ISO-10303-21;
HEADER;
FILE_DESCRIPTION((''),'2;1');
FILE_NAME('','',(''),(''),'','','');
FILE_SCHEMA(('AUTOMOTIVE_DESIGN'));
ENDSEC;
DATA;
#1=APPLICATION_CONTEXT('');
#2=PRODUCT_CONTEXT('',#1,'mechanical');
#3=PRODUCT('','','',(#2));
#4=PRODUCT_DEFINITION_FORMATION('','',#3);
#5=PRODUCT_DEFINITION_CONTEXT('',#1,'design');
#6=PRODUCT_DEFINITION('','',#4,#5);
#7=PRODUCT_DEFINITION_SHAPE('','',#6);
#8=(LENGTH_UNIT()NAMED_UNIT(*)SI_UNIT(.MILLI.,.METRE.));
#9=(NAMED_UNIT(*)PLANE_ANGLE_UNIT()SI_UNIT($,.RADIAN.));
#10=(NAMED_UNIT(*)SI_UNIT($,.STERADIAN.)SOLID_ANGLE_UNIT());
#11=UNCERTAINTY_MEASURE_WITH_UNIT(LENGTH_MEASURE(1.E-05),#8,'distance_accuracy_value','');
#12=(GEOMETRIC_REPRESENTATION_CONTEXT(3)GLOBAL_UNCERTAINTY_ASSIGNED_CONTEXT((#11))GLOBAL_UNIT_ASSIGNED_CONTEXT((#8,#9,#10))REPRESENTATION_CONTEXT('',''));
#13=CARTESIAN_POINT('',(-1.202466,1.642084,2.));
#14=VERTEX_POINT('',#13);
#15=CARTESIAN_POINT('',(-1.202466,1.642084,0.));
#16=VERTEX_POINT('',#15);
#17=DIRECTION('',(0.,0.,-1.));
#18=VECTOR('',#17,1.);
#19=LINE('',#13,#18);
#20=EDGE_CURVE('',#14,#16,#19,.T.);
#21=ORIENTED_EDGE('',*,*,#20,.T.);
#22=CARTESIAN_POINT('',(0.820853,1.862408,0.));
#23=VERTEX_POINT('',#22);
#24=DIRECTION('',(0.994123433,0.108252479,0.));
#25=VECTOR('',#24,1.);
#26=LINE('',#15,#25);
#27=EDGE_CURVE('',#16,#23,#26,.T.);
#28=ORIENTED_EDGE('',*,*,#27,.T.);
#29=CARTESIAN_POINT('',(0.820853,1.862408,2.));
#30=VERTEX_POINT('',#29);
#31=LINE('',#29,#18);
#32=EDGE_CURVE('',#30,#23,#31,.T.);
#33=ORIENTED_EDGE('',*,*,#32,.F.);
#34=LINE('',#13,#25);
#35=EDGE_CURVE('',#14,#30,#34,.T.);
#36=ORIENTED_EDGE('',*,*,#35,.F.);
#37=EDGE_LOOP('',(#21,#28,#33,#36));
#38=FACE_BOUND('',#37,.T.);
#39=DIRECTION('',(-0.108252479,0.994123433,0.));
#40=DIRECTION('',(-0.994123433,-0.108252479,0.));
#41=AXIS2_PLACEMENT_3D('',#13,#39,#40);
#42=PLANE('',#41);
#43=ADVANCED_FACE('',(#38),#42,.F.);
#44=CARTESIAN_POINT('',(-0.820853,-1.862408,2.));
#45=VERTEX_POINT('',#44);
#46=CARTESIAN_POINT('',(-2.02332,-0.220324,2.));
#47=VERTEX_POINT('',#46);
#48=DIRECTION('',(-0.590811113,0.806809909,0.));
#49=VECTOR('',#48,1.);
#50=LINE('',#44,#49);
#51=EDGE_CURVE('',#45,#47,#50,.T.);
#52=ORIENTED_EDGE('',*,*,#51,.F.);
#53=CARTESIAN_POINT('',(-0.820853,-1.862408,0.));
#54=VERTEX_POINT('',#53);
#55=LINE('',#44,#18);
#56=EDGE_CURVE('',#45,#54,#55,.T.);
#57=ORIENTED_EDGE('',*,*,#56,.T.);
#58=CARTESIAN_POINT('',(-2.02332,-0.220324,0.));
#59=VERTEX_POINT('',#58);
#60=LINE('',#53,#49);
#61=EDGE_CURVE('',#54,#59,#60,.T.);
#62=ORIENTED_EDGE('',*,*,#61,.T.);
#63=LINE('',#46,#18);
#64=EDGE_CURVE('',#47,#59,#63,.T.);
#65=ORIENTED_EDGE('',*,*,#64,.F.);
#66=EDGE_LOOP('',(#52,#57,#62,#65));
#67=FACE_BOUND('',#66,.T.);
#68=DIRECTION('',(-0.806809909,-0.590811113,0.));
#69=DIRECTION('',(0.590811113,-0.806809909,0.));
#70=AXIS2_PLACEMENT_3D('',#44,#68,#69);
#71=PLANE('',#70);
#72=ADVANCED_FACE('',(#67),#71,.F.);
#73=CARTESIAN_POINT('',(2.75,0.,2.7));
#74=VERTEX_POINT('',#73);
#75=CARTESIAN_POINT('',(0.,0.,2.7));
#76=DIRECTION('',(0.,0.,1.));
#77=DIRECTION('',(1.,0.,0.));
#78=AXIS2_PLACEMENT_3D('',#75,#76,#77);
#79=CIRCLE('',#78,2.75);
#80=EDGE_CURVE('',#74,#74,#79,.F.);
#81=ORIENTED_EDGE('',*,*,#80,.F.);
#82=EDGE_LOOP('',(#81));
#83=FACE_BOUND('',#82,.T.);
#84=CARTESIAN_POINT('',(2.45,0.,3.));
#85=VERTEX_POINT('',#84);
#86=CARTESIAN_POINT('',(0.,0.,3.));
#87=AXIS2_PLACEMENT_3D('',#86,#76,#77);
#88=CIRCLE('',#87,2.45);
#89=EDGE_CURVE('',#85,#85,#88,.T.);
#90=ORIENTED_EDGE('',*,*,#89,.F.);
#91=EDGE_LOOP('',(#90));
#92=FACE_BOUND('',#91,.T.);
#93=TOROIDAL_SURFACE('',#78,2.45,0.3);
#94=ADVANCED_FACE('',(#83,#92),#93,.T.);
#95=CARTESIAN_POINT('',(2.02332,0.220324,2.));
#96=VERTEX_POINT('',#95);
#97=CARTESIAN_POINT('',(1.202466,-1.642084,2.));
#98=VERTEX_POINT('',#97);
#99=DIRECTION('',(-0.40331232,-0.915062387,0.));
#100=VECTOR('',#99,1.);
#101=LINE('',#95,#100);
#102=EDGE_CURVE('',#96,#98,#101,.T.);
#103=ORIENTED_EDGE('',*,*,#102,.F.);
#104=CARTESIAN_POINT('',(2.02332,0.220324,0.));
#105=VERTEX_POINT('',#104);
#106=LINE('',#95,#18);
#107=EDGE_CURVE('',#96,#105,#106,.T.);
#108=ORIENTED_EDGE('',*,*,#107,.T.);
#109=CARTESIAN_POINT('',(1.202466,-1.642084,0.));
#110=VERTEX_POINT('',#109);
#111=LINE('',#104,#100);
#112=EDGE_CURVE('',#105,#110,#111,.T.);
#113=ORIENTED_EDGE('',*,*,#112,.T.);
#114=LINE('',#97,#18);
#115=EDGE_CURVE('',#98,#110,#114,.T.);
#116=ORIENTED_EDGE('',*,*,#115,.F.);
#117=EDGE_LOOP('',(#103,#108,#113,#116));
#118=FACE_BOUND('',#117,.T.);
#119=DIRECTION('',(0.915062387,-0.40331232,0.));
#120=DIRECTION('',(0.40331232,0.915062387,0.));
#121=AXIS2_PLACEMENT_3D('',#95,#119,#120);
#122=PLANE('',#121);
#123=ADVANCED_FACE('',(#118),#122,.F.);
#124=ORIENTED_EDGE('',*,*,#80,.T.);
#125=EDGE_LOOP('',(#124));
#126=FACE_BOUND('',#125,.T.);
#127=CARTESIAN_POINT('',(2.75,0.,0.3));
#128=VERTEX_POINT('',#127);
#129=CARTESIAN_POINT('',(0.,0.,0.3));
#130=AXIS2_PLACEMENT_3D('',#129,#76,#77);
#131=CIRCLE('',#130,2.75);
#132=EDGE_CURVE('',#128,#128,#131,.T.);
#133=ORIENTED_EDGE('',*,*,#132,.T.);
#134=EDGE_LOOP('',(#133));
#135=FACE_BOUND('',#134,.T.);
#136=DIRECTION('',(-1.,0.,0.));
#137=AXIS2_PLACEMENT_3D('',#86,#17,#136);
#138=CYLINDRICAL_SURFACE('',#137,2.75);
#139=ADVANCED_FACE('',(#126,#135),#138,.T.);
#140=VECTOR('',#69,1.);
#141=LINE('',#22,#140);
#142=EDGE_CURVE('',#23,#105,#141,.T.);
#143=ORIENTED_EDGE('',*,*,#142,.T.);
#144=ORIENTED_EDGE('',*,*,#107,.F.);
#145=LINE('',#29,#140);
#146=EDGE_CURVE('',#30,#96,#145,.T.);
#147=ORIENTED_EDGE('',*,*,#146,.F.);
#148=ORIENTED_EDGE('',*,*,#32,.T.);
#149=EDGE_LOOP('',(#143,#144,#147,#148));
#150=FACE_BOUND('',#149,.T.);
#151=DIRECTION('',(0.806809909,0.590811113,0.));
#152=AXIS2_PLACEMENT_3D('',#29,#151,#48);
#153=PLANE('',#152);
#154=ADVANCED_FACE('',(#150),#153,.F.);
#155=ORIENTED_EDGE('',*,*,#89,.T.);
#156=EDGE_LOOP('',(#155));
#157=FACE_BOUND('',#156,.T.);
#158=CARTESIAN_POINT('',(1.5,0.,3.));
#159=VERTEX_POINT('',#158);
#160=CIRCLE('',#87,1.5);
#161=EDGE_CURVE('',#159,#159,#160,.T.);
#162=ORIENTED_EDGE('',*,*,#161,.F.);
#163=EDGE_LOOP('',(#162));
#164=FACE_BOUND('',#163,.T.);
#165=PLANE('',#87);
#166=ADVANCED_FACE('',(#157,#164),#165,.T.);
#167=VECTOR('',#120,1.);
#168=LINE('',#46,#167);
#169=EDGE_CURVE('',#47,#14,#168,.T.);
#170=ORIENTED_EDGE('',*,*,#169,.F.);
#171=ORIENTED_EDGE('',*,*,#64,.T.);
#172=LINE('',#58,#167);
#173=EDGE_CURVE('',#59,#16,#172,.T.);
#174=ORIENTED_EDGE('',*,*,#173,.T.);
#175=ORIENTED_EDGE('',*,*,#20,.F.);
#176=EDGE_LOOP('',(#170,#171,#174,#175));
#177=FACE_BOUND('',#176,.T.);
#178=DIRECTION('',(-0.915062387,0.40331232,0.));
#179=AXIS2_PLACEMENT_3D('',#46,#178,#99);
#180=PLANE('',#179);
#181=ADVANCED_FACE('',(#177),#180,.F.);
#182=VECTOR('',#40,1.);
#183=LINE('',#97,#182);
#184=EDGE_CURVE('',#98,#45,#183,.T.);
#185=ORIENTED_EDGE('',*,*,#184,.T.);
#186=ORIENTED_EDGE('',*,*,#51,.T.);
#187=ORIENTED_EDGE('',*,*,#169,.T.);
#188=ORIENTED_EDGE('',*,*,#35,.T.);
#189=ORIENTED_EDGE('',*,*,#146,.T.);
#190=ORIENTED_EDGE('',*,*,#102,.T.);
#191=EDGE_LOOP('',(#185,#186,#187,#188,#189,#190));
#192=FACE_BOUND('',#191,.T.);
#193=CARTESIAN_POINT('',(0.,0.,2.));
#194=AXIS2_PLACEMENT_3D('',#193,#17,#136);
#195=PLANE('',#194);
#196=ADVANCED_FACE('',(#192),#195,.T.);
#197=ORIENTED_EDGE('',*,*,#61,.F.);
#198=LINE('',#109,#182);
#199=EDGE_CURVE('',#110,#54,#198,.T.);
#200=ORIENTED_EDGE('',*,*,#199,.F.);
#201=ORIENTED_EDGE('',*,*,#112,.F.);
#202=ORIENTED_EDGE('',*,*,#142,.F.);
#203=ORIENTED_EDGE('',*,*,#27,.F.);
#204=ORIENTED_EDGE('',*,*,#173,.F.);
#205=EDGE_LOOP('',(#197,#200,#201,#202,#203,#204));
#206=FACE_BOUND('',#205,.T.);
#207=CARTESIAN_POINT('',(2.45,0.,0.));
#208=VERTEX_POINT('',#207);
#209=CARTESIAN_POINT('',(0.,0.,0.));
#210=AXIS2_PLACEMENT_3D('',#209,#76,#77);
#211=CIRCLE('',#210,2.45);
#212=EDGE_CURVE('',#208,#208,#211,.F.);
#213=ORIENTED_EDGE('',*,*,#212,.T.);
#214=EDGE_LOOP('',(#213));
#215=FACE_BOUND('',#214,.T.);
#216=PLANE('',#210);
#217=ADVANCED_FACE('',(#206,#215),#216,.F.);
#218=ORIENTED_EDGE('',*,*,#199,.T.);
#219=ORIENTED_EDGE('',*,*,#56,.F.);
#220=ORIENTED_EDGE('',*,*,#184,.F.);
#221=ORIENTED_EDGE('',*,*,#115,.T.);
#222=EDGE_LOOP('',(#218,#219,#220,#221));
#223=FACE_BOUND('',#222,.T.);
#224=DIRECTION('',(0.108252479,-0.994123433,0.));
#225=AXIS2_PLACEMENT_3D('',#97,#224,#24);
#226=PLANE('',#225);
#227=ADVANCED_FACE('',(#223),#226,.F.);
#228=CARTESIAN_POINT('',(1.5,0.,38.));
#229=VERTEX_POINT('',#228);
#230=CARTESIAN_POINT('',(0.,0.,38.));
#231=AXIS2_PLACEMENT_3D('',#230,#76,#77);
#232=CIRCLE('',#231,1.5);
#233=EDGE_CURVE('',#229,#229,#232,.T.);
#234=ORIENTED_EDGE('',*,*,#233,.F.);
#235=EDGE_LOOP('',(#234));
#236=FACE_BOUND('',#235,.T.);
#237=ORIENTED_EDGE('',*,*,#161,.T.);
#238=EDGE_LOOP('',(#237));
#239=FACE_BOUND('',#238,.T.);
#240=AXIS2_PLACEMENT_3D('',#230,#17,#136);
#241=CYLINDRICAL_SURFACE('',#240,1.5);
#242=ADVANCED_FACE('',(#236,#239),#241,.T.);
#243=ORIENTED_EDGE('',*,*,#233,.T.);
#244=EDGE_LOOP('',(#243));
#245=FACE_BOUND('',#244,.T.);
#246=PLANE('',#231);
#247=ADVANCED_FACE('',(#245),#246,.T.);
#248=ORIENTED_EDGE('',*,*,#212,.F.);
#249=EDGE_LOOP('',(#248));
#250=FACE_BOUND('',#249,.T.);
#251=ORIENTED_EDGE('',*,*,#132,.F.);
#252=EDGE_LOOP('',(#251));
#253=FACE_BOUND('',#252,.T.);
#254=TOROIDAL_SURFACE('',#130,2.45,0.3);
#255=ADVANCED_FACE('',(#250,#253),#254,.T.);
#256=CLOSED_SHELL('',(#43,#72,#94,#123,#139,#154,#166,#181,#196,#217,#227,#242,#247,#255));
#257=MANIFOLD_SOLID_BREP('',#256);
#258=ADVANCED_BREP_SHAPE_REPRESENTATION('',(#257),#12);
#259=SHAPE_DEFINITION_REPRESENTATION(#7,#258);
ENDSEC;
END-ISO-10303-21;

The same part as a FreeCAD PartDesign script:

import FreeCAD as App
import Part
import Sketcher
from FreeCAD import Vector
Q = App.Units.Quantity


def edges_at(feature, points):
    """Names of the edges that pass closest to the given points."""
    edges = feature.Shape.Edges
    near = lambda p: min(range(len(edges)), key=lambda i: edges[i].distToShape(Part.Vertex(*p))[0])
    return sorted({f"Edge{near(p) + 1}" for p in points})


def add_polygon(sketch, points):
    """Adds a closed chain of lines whose ends are joined by coincident constraints."""
    first, n = sketch.GeometryCount, len(points)
    for a, b in zip(points, points[1:] + points[:1]):
        sketch.addGeometry(Part.LineSegment(App.Vector(*a, 0), App.Vector(*b, 0)), False)
    for i in range(n):
        sketch.addConstraint(Sketcher.Constraint("Coincident", first + i, 2, first + (i + 1) % n, 1))

doc = App.newDocument("Part")
body = doc.addObject("PartDesign::Body", "Body")

# Sketch on XY plane
sketch1 = doc.addObject("Sketcher::SketchObject", "Sketch")
body.addObject(sketch1)
sketch1.AttachmentSupport = (doc.XY_Plane, [""])
sketch1.MapMode = "FlatFace"
sketch1.addGeometry(Part.Circle(Vector(0, 0, 0), Vector(0, 0, 1), 2.75), False)
sketch1.addConstraint(Sketcher.Constraint("Coincident", 0, 3, -1, 1))
sketch1.addConstraint(Sketcher.Constraint("Diameter", 0, Q("5.5 mm")))
pad1 = doc.addObject("PartDesign::Pad", "Pad")
body.addObject(pad1)
pad1.Profile = sketch1
pad1.Length = 3

# Sketch on XY plane
sketch2 = doc.addObject("Sketcher::SketchObject", "Sketch001")
body.addObject(sketch2)
sketch2.AttachmentSupport = (doc.XY_Plane, [""])
sketch2.MapMode = "FlatFace"
sketch2.AttachmentOffset = App.Placement(Vector(0, 0, 3), App.Rotation())
sketch2.addGeometry(Part.Circle(Vector(0, 0, 0), Vector(0, 0, 1), 1.5), False)
sketch2.addConstraint(Sketcher.Constraint("Coincident", 0, 3, -1, 1))
sketch2.addConstraint(Sketcher.Constraint("Diameter", 0, Q("3 mm")))
pad2 = doc.addObject("PartDesign::Pad", "Pad001")
body.addObject(pad2)
pad2.Profile = sketch2
pad2.Length = 35
doc.recompute()

fillet = doc.addObject("PartDesign::Fillet", "Fillet")
body.addObject(fillet)
fillet.Base = (pad2, edges_at(pad2, [(-2.75, 0, 0), (-2.75, 0, 3)]))
fillet.Radius = 0.3

# Sketch on XY plane
sketch3 = doc.addObject("Sketcher::SketchObject", "Sketch002")
body.addObject(sketch3)
sketch3.AttachmentSupport = (doc.XY_Plane, [""])
sketch3.MapMode = "FlatFace"
add_polygon(sketch3, [(0.820853, 1.862408), (2.02332, 0.220324), (1.202466, -1.642084), (-0.820853, -1.862408), (-2.02332, -0.220324), (-1.202466, 1.642084)])  # lines 0-5
sketch3.addConstraint(Sketcher.Constraint("Symmetric", 0, 2, 3, 2, -1, 1))
sketch3.addConstraint(Sketcher.Constraint("Symmetric", 1, 2, 4, 2, -1, 1))
sketch3.addConstraint(Sketcher.Constraint("Symmetric", 2, 2, 5, 2, -1, 1))
sketch3.addConstraint(Sketcher.Constraint("Equal", 0, 1))
sketch3.addConstraint(Sketcher.Constraint("Equal", 1, 2))
sketch3.addConstraint(Sketcher.Constraint("Distance", 0, Q("2.03528 mm")))
sketch3.addConstraint(Sketcher.Constraint("DistanceX", -1, 1, 0, 2, Q("2.02332 mm")))
sketch3.addConstraint(Sketcher.Constraint("DistanceY", 2, 2, -1, 1, Q("1.862408 mm")))
sketch3.addConstraint(Sketcher.Constraint("DistanceY", 1, 2, 0, 2, Q("1.862408 mm")))
pocket1 = doc.addObject("PartDesign::Pocket", "Pocket")
body.addObject(pocket1)
pocket1.Profile = sketch3
pocket1.Length = 2
pocket1.Reversed = True

doc.recompute()
